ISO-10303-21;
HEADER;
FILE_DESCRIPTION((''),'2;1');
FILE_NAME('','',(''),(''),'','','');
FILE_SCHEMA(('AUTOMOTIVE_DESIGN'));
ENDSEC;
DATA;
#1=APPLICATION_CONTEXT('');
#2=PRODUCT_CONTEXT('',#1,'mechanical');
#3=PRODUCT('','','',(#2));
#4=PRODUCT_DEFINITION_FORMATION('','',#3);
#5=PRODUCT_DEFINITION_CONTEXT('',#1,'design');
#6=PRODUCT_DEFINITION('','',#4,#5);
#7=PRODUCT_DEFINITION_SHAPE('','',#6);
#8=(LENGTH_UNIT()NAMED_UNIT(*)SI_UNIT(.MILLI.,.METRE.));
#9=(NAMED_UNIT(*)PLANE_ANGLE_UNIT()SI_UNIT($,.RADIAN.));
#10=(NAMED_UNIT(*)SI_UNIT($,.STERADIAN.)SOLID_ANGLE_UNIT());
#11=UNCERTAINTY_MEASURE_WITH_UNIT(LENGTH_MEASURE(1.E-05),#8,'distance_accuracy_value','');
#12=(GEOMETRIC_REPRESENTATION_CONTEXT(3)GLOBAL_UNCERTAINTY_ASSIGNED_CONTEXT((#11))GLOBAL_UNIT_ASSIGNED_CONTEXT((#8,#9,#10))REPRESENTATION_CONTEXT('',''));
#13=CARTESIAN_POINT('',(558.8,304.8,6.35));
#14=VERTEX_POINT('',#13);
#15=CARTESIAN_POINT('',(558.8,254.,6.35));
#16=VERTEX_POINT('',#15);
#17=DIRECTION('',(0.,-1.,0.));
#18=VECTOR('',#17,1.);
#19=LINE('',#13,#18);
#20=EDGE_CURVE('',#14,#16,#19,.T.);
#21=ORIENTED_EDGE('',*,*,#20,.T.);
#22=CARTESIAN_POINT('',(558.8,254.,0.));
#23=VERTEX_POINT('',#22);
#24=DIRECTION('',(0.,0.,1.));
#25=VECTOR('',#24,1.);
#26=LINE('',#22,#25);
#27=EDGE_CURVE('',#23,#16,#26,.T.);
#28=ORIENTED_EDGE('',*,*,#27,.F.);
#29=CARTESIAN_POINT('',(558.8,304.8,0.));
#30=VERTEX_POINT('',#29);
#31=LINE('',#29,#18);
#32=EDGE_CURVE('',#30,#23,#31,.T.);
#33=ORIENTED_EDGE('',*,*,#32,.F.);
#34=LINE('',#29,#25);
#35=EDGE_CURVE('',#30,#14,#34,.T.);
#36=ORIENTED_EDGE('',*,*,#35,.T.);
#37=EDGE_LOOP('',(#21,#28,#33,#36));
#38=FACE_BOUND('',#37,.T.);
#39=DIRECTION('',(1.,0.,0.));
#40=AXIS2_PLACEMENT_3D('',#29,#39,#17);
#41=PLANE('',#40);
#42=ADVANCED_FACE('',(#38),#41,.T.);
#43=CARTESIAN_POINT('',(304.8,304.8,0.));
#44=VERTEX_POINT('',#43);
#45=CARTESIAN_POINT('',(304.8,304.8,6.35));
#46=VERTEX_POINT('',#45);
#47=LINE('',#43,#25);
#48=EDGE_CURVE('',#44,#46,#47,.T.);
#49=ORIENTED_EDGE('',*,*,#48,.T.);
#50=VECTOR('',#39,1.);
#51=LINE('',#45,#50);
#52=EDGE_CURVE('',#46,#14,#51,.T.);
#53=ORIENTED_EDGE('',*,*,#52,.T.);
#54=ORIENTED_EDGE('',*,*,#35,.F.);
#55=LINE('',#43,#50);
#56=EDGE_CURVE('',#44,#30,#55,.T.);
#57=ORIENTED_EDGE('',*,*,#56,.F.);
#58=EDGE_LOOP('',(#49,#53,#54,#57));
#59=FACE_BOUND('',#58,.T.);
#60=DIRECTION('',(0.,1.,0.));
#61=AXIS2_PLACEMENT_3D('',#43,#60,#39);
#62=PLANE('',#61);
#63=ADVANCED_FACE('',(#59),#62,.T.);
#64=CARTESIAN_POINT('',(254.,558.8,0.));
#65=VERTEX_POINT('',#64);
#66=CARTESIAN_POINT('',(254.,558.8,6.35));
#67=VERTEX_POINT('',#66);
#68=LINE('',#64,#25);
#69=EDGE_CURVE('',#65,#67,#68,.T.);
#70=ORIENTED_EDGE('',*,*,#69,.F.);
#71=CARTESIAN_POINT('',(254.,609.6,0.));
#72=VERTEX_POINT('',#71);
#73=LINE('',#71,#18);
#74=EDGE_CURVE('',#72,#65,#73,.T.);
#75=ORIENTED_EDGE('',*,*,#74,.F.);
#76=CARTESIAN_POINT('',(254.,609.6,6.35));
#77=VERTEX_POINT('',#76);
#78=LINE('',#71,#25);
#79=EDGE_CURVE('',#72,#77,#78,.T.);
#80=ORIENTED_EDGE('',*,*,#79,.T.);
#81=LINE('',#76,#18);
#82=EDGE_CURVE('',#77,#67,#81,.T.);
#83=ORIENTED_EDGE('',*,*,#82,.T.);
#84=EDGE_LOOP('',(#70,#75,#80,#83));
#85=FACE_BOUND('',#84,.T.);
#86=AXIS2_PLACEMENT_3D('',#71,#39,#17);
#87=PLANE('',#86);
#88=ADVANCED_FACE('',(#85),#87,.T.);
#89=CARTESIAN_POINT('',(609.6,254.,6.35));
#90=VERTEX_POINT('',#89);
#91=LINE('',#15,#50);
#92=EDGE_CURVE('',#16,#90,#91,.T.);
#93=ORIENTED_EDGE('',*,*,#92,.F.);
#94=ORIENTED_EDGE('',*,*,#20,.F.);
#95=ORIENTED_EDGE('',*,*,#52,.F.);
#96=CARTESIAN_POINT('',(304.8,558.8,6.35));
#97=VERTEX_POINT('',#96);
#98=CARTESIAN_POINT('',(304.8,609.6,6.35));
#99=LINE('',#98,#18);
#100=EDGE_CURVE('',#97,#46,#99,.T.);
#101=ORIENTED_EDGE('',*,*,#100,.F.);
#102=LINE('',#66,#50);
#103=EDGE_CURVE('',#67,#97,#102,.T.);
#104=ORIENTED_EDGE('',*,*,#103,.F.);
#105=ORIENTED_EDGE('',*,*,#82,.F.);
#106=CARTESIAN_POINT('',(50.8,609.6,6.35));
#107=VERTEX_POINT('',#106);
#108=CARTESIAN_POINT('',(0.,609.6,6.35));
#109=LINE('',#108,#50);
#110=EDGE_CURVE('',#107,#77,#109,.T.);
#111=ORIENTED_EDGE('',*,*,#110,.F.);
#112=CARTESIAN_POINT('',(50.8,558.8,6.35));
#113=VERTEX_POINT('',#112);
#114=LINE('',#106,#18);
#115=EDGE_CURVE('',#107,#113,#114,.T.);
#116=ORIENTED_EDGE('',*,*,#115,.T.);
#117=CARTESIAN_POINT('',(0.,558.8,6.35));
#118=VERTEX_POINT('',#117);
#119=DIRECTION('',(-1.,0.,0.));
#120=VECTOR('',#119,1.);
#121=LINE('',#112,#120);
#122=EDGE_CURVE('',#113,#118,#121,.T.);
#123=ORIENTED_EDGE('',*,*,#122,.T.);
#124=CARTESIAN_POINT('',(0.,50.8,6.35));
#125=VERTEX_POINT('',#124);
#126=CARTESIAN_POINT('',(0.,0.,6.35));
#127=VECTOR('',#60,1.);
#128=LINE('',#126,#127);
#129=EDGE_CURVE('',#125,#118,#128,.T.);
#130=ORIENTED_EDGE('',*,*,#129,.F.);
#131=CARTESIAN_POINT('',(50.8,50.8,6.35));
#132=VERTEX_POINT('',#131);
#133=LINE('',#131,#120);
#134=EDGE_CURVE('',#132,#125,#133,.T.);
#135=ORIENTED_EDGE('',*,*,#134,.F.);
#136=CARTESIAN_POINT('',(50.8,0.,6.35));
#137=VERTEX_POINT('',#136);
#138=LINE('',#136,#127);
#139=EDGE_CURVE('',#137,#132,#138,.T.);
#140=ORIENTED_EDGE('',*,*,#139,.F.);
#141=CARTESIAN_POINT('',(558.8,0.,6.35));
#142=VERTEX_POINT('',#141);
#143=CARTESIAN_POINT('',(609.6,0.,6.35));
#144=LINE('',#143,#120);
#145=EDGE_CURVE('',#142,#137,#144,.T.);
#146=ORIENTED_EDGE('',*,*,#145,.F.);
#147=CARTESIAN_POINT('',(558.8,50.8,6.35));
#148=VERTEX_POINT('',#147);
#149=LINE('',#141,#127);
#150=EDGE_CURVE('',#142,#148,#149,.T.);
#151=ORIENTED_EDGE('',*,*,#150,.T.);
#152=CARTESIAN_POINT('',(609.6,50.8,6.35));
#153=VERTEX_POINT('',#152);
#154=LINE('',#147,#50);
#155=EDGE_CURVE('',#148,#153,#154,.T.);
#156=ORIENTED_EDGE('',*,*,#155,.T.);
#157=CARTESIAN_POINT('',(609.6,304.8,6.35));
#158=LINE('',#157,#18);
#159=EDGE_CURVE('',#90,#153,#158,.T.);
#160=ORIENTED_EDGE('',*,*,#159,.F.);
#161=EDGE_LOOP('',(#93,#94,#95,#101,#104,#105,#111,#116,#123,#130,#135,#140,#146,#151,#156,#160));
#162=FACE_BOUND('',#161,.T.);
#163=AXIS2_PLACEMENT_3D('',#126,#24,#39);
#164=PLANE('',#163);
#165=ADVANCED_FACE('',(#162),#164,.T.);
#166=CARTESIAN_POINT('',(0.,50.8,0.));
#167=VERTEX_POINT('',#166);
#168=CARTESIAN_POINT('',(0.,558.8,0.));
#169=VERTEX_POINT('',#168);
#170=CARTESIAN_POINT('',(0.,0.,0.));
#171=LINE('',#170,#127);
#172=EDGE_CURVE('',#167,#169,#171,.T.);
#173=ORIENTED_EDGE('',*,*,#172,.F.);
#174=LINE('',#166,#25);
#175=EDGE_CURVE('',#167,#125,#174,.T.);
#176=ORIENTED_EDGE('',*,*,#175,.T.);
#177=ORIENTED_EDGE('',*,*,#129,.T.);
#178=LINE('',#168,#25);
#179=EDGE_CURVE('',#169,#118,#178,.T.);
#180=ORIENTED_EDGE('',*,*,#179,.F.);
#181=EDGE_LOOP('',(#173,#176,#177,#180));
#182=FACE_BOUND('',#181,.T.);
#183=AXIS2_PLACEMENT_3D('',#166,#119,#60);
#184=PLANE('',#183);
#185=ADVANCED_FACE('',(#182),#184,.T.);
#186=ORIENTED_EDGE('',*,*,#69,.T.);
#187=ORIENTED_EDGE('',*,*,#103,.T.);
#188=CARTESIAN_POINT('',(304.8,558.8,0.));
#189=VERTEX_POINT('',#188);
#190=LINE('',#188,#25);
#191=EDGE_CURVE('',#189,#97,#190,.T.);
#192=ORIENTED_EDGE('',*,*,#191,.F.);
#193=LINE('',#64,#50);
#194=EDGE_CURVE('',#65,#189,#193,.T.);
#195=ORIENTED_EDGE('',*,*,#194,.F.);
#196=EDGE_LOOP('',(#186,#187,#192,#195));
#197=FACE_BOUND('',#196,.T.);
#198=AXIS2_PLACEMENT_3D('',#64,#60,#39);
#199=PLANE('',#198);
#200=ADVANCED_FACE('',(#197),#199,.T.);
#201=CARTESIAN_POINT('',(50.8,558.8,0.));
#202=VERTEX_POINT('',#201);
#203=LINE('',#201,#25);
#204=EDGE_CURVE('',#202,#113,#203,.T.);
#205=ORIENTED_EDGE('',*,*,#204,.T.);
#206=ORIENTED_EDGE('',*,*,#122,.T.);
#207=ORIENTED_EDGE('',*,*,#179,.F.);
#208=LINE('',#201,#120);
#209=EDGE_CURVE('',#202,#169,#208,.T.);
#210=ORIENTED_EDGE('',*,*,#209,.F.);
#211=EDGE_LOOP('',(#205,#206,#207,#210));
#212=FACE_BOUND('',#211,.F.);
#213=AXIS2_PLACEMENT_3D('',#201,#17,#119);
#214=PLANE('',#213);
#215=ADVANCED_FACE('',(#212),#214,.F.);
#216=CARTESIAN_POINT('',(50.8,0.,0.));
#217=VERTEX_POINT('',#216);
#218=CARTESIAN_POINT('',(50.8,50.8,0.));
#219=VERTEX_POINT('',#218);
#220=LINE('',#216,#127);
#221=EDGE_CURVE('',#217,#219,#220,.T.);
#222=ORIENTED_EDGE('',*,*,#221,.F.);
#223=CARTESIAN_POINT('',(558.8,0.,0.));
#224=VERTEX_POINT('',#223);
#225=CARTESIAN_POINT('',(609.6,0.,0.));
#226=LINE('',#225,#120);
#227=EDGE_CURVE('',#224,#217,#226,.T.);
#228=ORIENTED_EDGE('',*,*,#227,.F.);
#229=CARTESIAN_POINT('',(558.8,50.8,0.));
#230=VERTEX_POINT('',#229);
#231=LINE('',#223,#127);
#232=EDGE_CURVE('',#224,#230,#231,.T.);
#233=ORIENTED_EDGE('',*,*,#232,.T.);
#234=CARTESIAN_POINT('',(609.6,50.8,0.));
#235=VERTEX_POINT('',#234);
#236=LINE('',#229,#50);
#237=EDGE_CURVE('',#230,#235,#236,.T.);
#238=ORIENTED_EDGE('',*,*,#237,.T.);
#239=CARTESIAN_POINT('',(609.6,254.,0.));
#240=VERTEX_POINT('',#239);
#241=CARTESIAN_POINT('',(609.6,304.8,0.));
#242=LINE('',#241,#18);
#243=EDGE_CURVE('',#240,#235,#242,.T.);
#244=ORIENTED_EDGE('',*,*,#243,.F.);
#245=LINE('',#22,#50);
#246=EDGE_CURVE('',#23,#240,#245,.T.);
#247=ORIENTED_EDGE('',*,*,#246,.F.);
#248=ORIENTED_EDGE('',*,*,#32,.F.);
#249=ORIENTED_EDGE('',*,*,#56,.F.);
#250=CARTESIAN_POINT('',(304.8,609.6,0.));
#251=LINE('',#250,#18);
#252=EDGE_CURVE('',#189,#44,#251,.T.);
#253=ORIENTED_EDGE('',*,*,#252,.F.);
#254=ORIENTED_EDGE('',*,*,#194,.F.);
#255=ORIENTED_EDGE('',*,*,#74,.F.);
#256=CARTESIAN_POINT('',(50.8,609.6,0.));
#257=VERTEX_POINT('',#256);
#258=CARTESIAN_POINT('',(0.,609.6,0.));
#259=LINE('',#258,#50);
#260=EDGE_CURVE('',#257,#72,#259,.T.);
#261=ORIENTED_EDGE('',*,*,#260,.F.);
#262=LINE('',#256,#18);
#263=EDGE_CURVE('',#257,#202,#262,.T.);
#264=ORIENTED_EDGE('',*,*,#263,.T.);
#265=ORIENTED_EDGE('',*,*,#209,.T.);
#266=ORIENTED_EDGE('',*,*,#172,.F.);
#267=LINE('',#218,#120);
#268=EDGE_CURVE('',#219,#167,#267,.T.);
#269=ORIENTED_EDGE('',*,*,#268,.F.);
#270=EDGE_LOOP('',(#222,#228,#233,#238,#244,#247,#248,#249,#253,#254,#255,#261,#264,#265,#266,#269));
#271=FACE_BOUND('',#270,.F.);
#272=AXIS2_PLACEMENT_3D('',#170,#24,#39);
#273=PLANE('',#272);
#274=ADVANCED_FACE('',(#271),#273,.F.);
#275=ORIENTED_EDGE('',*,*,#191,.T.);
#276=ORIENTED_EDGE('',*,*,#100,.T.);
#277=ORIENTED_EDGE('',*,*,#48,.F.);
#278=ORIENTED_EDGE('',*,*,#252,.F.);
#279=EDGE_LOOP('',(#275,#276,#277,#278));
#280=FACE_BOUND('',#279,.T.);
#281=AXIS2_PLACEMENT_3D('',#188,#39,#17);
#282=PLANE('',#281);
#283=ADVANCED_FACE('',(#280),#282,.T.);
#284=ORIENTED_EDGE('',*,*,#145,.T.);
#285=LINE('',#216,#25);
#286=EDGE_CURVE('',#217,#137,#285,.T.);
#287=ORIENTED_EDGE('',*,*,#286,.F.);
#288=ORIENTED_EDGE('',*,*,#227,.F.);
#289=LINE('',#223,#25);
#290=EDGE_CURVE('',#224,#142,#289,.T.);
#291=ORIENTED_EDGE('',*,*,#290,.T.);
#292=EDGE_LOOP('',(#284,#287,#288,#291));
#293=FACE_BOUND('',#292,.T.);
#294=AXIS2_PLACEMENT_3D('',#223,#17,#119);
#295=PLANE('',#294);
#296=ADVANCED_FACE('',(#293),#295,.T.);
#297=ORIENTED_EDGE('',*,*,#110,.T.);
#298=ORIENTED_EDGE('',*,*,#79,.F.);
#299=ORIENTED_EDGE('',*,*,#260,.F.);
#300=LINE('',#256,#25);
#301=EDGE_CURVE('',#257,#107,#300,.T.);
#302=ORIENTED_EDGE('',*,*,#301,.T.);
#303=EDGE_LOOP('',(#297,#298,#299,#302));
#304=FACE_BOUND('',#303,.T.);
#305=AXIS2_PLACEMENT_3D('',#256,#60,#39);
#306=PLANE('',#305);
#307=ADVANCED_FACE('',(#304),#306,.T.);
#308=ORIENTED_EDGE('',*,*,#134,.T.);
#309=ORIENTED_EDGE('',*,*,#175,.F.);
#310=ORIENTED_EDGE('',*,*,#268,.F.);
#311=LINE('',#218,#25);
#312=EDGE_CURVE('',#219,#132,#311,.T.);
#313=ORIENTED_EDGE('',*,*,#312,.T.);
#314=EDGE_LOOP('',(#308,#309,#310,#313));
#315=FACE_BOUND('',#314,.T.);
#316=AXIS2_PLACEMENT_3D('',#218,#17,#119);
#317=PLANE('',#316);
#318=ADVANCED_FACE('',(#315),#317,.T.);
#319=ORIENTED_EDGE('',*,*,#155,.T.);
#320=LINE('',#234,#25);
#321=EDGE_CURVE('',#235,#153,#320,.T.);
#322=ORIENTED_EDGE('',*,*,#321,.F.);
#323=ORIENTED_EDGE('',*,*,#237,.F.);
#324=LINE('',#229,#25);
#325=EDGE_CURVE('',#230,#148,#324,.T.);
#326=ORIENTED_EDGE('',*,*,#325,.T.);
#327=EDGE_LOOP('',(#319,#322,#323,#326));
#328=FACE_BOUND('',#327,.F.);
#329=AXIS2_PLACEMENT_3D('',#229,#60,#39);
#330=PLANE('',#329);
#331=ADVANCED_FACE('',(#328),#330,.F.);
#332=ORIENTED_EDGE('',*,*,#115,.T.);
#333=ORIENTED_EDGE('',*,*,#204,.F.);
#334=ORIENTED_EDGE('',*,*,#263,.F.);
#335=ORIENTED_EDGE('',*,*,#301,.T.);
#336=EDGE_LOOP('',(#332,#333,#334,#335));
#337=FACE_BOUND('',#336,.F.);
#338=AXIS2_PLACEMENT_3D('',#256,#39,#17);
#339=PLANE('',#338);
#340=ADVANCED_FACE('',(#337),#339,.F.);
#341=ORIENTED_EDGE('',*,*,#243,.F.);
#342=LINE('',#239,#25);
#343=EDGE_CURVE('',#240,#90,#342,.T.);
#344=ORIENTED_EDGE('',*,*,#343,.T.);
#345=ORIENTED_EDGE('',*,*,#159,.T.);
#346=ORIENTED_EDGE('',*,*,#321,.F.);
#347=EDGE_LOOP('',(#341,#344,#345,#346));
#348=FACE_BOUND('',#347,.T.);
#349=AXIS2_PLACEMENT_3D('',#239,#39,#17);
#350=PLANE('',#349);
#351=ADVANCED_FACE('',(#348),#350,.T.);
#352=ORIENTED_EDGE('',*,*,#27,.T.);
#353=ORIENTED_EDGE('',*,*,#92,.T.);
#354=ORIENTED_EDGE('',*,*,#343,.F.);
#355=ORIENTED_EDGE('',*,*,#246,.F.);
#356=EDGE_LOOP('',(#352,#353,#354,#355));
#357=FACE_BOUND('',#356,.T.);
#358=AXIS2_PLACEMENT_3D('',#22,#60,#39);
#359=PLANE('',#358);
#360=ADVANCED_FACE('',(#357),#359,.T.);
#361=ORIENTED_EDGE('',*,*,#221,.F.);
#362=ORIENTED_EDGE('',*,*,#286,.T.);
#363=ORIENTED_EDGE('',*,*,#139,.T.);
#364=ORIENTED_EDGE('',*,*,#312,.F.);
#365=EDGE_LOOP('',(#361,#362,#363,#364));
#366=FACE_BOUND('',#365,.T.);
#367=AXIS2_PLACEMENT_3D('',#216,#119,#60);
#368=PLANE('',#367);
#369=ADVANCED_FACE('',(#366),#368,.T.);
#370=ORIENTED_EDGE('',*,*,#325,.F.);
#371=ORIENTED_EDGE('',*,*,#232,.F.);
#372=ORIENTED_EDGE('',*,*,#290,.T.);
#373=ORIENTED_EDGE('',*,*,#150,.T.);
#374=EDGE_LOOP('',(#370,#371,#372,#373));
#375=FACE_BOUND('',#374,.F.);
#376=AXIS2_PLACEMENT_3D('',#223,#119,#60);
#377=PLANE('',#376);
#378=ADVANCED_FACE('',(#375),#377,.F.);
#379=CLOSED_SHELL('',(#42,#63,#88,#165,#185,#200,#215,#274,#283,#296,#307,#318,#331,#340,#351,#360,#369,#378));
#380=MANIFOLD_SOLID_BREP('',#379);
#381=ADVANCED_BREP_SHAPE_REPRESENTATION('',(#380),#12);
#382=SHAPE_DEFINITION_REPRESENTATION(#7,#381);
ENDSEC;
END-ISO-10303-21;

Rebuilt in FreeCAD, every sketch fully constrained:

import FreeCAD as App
import Part
import Sketcher
from FreeCAD import Vector
Q = App.Units.Quantity

doc = App.newDocument("Part")
body = doc.addObject("PartDesign::Body", "Body")

sketch1 = body.newObject("Sketcher::SketchObject", "Sketch")
sketch1.AttachmentSupport = (doc.getObject("XY_Plane"), [""])
sketch1.MapMode = "FlatFace"
sketch1.addGeometry(Part.LineSegment(Vector(0, 559, 0), Vector(0, 51, 0)), False)
sketch1.addGeometry(Part.LineSegment(Vector(0, 51, 0), Vector(51, 51, 0)), False)
sketch1.addGeometry(Part.LineSegment(Vector(51, 51, 0), Vector(51, 0, 0)), False)
sketch1.addGeometry(Part.LineSegment(Vector(51, 0, 0), Vector(559, 0, 0)), False)
sketch1.addGeometry(Part.LineSegment(Vector(559, 0, 0), Vector(559, 51, 0)), False)
sketch1.addGeometry(Part.LineSegment(Vector(559, 51, 0), Vector(610, 51, 0)), False)
sketch1.addGeometry(Part.LineSegment(Vector(610, 51, 0), Vector(610, 254, 0)), False)
sketch1.addGeometry(Part.LineSegment(Vector(610, 254, 0), Vector(559, 254, 0)), False)
sketch1.addGeometry(Part.LineSegment(Vector(559, 254, 0), Vector(559, 305, 0)), False)
sketch1.addGeometry(Part.LineSegment(Vector(559, 305, 0), Vector(305, 305, 0)), False)
sketch1.addGeometry(Part.LineSegment(Vector(305, 305, 0), Vector(305, 559, 0)), False)
sketch1.addGeometry(Part.LineSegment(Vector(305, 559, 0), Vector(254, 559, 0)), False)
sketch1.addGeometry(Part.LineSegment(Vector(254, 559, 0), Vector(254, 610, 0)), False)
sketch1.addGeometry(Part.LineSegment(Vector(254, 610, 0), Vector(51, 610, 0)), False)
sketch1.addGeometry(Part.LineSegment(Vector(51, 610, 0), Vector(51, 559, 0)), False)
sketch1.addGeometry(Part.LineSegment(Vector(51, 559, 0), Vector(0, 559, 0)), False)
sketch1.addConstraint(Sketcher.Constraint("Coincident", 0, 2, 1, 1))
sketch1.addConstraint(Sketcher.Constraint("Coincident", 1, 2, 2, 1))
sketch1.addConstraint(Sketcher.Constraint("Coincident", 2, 2, 3, 1))
sketch1.addConstraint(Sketcher.Constraint("Coincident", 3, 2, 4, 1))
sketch1.addConstraint(Sketcher.Constraint("Coincident", 4, 2, 5, 1))
sketch1.addConstraint(Sketcher.Constraint("Coincident", 5, 2, 6, 1))
sketch1.addConstraint(Sketcher.Constraint("Coincident", 6, 2, 7, 1))
sketch1.addConstraint(Sketcher.Constraint("Coincident", 7, 2, 8, 1))
sketch1.addConstraint(Sketcher.Constraint("Coincident", 8, 2, 9, 1))
sketch1.addConstraint(Sketcher.Constraint("Coincident", 9, 2, 10, 1))
sketch1.addConstraint(Sketcher.Constraint("Coincident", 10, 2, 11, 1))
sketch1.addConstraint(Sketcher.Constraint("Coincident", 11, 2, 12, 1))
sketch1.addConstraint(Sketcher.Constraint("Coincident", 12, 2, 13, 1))
sketch1.addConstraint(Sketcher.Constraint("Coincident", 13, 2, 14, 1))
sketch1.addConstraint(Sketcher.Constraint("Coincident", 14, 2, 15, 1))
sketch1.addConstraint(Sketcher.Constraint("Coincident", 15, 2, 0, 1))
sketch1.addConstraint(Sketcher.Constraint("Vertical", 0))
sketch1.addConstraint(Sketcher.Constraint("Horizontal", 1))
sketch1.addConstraint(Sketcher.Constraint("Vertical", 2))
sketch1.addConstraint(Sketcher.Constraint("Horizontal", 3))
sketch1.addConstraint(Sketcher.Constraint("Vertical", 4))
sketch1.addConstraint(Sketcher.Constraint("Horizontal", 5))
sketch1.addConstraint(Sketcher.Constraint("Vertical", 6))
sketch1.addConstraint(Sketcher.Constraint("Horizontal", 7))
sketch1.addConstraint(Sketcher.Constraint("Vertical", 8))
sketch1.addConstraint(Sketcher.Constraint("Horizontal", 9))
sketch1.addConstraint(Sketcher.Constraint("Vertical", 10))
sketch1.addConstraint(Sketcher.Constraint("Horizontal", 11))
sketch1.addConstraint(Sketcher.Constraint("Vertical", 12))
sketch1.addConstraint(Sketcher.Constraint("Horizontal", 13))
sketch1.addConstraint(Sketcher.Constraint("Vertical", 14))
sketch1.addConstraint(Sketcher.Constraint("Horizontal", 15))
sketch1.addConstraint(Sketcher.Constraint("PointOnObject", 0, 2, -2))
sketch1.addConstraint(Sketcher.Constraint("PointOnObject", 2, 2, -1))
sketch1.addConstraint(Sketcher.Constraint("Horizontal", 1, 2, 4, 2))
sketch1.addConstraint(Sketcher.Constraint("Horizontal", 11, 2, 14, 2))
sketch1.addConstraint(Sketcher.Constraint("Vertical", 4, 2, 7, 2))
sketch1.addConstraint(Sketcher.Constraint("Vertical", 2, 2, 13, 2))
sketch1.addConstraint(Sketcher.Constraint("Equal", 1, 5))
sketch1.addConstraint(Sketcher.Constraint("Equal", 7, 11))
sketch1.addConstraint(Sketcher.Constraint("Equal", 3, 0))
sketch1.addConstraint(Sketcher.Constraint("Equal", 15, 2))
sketch1.addConstraint(Sketcher.Constraint("Equal", 13, 6))
sketch1.addConstraint(Sketcher.Constraint("Equal", 4, 8))
sketch1.addConstraint(Sketcher.Constraint("Equal", 8, 12))
sketch1.addConstraint(Sketcher.Constraint("DistanceX", 1, 1, 1, 2, Q("2 in")))
sketch1.addConstraint(Sketcher.Constraint("DistanceX", -1, 1, 5, 2, Q("24 in")))
sketch1.addConstraint(Sketcher.Constraint("DistanceY", -1, 1, 8, 2, Q("12 in")))
pad1 = body.newObject("PartDesign::Pad", "Pad")
pad1.Profile = sketch1
pad1.Length = Q("0.25 in")

doc.recompute()
